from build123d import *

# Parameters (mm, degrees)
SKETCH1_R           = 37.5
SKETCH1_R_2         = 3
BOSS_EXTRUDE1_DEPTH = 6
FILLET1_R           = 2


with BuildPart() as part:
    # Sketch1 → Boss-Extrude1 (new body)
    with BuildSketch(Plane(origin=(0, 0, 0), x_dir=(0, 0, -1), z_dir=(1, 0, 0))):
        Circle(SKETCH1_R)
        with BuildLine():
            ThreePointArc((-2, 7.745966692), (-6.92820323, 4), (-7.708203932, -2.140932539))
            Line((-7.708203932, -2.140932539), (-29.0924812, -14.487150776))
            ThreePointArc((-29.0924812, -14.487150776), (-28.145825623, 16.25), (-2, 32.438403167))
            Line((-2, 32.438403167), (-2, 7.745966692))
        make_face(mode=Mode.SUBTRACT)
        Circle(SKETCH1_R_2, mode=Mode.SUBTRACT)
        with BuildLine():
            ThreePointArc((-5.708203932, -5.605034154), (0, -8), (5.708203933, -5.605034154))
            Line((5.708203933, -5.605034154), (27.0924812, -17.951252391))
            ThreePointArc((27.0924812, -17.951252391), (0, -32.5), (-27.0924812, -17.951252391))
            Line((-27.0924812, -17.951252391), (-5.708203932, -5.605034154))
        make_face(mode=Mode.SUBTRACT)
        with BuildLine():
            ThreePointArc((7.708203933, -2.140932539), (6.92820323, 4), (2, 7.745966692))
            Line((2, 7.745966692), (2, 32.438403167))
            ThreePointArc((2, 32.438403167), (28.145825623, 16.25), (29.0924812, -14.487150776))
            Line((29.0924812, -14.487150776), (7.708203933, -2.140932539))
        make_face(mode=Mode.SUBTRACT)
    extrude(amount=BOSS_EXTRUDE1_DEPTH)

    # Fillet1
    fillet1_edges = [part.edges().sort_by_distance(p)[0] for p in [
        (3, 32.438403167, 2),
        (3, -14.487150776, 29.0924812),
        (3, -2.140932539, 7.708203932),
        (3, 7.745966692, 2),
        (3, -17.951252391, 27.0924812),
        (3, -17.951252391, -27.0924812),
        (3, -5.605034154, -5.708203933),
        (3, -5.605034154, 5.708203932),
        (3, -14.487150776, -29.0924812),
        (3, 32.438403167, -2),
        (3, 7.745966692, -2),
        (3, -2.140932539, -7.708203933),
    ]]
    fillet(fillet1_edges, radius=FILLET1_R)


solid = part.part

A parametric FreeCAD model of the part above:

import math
import FreeCAD as App
import Part
import Sketcher
from FreeCAD import Vector
Q = App.Units.Quantity


def edges_at(feature, points):
    """Names of the edges that pass closest to the given points."""
    edges = feature.Shape.Edges
    near = lambda p: min(range(len(edges)), key=lambda i: edges[i].distToShape(Part.Vertex(*p))[0])
    return sorted({f"Edge{near(p) + 1}" for p in points})

doc = App.newDocument("Part")
body = doc.addObject("PartDesign::Body", "Body")

# Sketch on YZ plane
sketch1 = body.newObject("Sketcher::SketchObject", "Sketch")
sketch1.AttachmentSupport = (doc.getObject("YZ_Plane"), [""])
sketch1.MapMode = "FlatFace"
sketch1.addGeometry([
    Part.Circle(Vector(0, 0, 0), Vector(0, 0, 1), 37.5),  # 0
    Part.LineSegment(Vector(-18, 27.1, 0), Vector(-5.6, 5.7, 0)),  # 1
    Part.ArcOfCircle(Part.Circle(Vector(0, 0, 0), Vector(0, 0, 1), 8), math.radians(134), math.radians(226)),  # 2
    Part.LineSegment(Vector(-5.6, -5.7, 0), Vector(-18, -27.1, 0)),  # 3
    Part.ArcOfCircle(Part.Circle(Vector(0, 0, 0), Vector(0, 0, 1), 32.5), math.radians(124), math.radians(236)),  # 4
    Part.LineSegment(Vector(32.4, 2, 0), Vector(7.7, 2, 0)),  # 5
    Part.ArcOfCircle(Part.Circle(Vector(0, 0, 0), Vector(0, 0, 1), 8), math.radians(14), math.radians(106)),  # 6
    Part.LineSegment(Vector(-2.1, 7.7, 0), Vector(-14.5, 29.1, 0)),  # 7
    Part.ArcOfCircle(Part.Circle(Vector(0, 0, 0), Vector(0, 0, 1), 32.5), math.radians(4), math.radians(116)),  # 8
    Part.Circle(Vector(0, 0, 0), Vector(0, 0, 1), 3),  # 9
    Part.LineSegment(Vector(-14.5, -29.1, 0), Vector(-2.1, -7.7, 0)),  # 10
    Part.ArcOfCircle(Part.Circle(Vector(0, 0, 0), Vector(0, 0, 1), 8), math.radians(-106), math.radians(-14)),  # 11
    Part.LineSegment(Vector(7.7, -2, 0), Vector(32.4, -2, 0)),  # 12
    Part.ArcOfCircle(Part.Circle(Vector(0, 0, 0), Vector(0, 0, 1), 32.5), math.radians(-116), math.radians(-4)),  # 13
], False)
sketch1.addConstraint([
    Sketcher.Constraint("Coincident", 1, 2, 2, 1),
    Sketcher.Constraint("Coincident", 2, 2, 3, 1),
    Sketcher.Constraint("Coincident", 3, 2, 4, 2),
    Sketcher.Constraint("Coincident", 4, 1, 1, 1),
    Sketcher.Constraint("Coincident", 5, 2, 6, 1),
    Sketcher.Constraint("Coincident", 6, 2, 7, 1),
    Sketcher.Constraint("Coincident", 7, 2, 8, 2),
    Sketcher.Constraint("Coincident", 8, 1, 5, 1),
    Sketcher.Constraint("Coincident", 10, 2, 11, 1),
    Sketcher.Constraint("Coincident", 11, 2, 12, 1),
    Sketcher.Constraint("Coincident", 12, 2, 13, 2),
    Sketcher.Constraint("Coincident", 13, 1, 10, 1),
    Sketcher.Constraint("Horizontal", 5),
    Sketcher.Constraint("Horizontal", 12),
    Sketcher.Constraint("Coincident", 0, 3, -1, 1),
    Sketcher.Constraint("Coincident", 2, 3, -1, 1),
    Sketcher.Constraint("Coincident", 4, 3, -1, 1),
    Sketcher.Constraint("Coincident", 6, 3, -1, 1),
    Sketcher.Constraint("Coincident", 8, 3, -1, 1),
    Sketcher.Constraint("Coincident", 9, 3, -1, 1),
    Sketcher.Constraint("Coincident", 11, 3, -1, 1),
    Sketcher.Constraint("Coincident", 13, 3, -1, 1),
    Sketcher.Constraint("Equal", 2, 6),
    Sketcher.Constraint("Equal", 4, 8),
    Sketcher.Constraint("Equal", 6, 11),
    Sketcher.Constraint("Equal", 8, 13),
    Sketcher.Constraint("Parallel", 1, 7),
    Sketcher.Constraint("Parallel", 3, 10),
    Sketcher.Constraint("Vertical", 1, 2, 2, 2),
    Sketcher.Constraint("Vertical", 3, 2, 4, 1),
    Sketcher.Constraint("Vertical", 6, 2, 10, 2),
    Sketcher.Constraint("Vertical", 5, 2, 11, 2),
    Sketcher.Constraint("Equal", 3, 7),
    Sketcher.Constraint("Diameter", 0, 75.0),
    Sketcher.Constraint("Diameter", 9, 6.0),
    Sketcher.Constraint("Radius", 2, 8.0),
    Sketcher.Constraint("Radius", 4, 32.5),
    Sketcher.Constraint("Angle", 1, Q("-60 deg")),
    Sketcher.Constraint("DistanceY", -1, 1, 5, 2, 2.0),
    Sketcher.Constraint("DistanceY", 1, 2, 6, 2, 2.0),
])
pad1 = body.newObject("PartDesign::Pad", "Pad")
pad1.Profile = sketch1
pad1.Length = 6
doc.recompute()

fillet = body.newObject("PartDesign::Fillet", "Fillet")
fillet.Base = (pad1, edges_at(pad1, [
    (3, 32.438, 2),
    (3, -14.487, 29.092),
    (3, -2.141, 7.708),
    (3, 7.746, 2),
    (3, -17.951, 27.092),
    (3, -17.951, -27.092),
    (3, -5.605, -5.708),
    (3, -5.605, 5.708),
    (3, -14.487, -29.092),
    (3, 32.438, -2),
    (3, 7.746, -2),
    (3, -2.141, -7.708),
]))
fillet.Radius = 2

doc.recompute()
